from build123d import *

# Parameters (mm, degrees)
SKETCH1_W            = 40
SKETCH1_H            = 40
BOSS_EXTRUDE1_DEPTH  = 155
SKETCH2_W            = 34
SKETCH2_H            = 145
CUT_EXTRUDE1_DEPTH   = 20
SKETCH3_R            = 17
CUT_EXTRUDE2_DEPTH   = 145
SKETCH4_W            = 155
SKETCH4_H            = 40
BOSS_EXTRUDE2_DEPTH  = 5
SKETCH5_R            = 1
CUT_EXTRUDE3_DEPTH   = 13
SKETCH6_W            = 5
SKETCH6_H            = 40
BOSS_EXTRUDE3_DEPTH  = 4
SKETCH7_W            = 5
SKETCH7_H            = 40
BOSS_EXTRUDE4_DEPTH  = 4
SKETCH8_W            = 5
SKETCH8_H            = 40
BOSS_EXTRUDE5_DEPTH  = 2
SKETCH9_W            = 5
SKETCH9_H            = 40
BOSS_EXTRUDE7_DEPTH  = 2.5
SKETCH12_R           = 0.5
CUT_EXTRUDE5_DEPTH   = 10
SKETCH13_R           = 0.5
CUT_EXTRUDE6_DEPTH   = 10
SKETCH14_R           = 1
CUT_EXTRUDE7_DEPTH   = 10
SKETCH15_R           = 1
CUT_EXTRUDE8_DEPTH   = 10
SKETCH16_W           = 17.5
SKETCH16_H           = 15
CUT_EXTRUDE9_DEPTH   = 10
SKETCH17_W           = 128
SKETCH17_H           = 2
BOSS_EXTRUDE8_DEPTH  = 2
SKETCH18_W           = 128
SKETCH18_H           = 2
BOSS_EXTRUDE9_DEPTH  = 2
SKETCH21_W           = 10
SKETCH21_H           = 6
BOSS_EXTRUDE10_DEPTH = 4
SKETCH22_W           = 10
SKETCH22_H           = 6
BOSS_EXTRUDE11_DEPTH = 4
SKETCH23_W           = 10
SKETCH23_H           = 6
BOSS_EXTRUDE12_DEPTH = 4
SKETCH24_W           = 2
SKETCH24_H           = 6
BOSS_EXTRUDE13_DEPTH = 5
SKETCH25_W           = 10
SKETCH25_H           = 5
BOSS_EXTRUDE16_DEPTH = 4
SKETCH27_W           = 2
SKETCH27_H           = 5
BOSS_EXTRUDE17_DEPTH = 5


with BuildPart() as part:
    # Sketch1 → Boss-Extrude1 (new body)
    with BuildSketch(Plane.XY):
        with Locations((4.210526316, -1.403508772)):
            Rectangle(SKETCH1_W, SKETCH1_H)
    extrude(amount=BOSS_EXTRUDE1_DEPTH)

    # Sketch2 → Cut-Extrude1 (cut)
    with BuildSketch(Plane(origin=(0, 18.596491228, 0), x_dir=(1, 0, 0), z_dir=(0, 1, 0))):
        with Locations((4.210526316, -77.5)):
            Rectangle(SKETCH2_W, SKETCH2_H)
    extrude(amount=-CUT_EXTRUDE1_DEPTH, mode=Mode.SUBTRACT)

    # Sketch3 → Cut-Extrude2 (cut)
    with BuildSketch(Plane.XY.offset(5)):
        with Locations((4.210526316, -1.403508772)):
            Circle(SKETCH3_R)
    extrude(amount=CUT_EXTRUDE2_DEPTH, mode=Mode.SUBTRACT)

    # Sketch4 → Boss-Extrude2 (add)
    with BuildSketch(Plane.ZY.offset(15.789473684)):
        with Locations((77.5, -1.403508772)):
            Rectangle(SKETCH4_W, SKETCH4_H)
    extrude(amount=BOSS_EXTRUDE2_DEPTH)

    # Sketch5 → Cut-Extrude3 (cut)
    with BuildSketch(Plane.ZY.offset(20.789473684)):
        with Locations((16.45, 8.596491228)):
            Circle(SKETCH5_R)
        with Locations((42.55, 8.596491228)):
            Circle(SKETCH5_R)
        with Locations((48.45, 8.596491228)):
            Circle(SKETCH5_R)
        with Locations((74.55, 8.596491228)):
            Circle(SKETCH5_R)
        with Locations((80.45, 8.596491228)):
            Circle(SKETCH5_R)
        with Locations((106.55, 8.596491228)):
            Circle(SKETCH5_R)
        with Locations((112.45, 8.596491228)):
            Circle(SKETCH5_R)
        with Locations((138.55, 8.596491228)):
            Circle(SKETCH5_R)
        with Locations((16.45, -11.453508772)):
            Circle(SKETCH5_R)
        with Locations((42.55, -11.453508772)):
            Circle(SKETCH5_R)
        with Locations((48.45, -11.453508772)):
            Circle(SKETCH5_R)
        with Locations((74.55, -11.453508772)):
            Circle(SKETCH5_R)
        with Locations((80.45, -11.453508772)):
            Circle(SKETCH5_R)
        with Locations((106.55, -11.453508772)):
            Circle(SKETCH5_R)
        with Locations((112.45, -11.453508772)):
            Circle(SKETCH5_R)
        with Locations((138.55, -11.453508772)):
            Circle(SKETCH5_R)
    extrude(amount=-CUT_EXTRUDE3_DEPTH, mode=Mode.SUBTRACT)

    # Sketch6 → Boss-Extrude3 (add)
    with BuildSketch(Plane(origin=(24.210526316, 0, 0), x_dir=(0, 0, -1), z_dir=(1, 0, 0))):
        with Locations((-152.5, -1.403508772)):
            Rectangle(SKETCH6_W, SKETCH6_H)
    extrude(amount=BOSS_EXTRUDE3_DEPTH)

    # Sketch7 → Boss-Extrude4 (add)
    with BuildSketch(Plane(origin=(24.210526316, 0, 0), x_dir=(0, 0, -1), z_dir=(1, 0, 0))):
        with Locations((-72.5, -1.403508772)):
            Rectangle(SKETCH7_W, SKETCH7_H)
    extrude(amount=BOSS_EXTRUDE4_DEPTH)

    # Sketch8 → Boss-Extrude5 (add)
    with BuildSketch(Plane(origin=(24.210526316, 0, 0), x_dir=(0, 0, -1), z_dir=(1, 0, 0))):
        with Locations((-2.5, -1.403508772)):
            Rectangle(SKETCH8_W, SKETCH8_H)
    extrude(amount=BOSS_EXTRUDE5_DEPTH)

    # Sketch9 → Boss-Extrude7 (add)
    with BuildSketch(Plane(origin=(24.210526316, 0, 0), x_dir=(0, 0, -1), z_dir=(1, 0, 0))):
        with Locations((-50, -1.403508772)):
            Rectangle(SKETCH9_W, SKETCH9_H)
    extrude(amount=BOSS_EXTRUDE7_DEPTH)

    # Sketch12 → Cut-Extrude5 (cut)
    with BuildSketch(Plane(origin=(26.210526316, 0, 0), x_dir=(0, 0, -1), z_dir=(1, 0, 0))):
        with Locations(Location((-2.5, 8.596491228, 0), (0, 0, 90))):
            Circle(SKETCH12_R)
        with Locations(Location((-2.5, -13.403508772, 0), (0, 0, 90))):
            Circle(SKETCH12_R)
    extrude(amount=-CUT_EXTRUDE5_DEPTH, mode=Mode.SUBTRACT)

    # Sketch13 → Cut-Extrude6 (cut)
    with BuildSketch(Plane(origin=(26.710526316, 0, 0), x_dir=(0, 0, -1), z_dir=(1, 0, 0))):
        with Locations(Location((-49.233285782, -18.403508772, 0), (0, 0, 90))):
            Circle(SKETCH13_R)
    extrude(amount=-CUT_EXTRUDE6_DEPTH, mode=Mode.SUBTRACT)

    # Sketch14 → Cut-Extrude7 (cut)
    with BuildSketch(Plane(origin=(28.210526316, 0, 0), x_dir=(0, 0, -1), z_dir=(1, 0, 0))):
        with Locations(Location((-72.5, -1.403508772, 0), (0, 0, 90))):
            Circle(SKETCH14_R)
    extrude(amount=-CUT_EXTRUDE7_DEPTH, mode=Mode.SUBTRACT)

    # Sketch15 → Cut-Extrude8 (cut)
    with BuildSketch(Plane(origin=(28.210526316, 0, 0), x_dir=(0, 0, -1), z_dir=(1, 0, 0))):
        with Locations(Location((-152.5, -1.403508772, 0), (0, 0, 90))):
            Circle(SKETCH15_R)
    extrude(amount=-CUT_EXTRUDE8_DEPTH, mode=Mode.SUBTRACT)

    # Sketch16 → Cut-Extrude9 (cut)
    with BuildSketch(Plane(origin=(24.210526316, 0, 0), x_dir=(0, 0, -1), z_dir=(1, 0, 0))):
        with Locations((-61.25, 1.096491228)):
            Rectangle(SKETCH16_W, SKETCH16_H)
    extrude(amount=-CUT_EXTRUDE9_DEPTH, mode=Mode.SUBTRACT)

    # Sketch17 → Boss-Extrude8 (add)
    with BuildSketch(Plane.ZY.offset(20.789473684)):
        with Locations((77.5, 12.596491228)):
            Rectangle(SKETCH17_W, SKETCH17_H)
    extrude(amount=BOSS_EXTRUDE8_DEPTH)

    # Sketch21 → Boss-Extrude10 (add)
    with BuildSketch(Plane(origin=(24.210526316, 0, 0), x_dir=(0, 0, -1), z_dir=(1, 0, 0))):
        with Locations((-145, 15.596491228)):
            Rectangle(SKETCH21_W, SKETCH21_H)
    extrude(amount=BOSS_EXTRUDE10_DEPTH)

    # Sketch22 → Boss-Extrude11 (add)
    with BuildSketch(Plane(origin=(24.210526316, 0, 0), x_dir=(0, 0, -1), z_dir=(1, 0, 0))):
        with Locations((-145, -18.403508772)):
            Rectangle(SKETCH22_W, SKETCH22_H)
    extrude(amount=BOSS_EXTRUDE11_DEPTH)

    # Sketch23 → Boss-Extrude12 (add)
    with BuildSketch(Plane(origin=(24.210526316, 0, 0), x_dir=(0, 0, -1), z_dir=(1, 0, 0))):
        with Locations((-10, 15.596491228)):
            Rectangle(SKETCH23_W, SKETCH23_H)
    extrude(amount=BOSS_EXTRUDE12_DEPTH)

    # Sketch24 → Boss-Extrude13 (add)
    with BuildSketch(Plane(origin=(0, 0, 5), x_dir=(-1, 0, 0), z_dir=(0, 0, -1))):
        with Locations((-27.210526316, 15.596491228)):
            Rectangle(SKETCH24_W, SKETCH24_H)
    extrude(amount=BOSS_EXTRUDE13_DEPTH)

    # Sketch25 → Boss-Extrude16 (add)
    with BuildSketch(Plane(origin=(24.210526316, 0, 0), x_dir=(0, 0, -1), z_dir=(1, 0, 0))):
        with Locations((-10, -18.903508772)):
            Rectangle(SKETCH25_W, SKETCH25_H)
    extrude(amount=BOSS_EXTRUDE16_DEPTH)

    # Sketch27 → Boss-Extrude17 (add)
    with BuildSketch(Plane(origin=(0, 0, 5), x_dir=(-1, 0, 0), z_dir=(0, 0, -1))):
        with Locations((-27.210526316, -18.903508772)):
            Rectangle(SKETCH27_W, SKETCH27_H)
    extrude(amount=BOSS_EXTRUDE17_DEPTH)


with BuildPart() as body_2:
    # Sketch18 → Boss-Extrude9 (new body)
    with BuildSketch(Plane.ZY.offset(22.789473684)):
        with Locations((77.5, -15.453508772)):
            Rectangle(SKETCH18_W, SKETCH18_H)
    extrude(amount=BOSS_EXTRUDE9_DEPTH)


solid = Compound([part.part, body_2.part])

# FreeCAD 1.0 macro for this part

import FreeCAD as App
import Part
import Sketcher

V = App.Vector

doc = App.newDocument("Part")
body = doc.addObject("PartDesign::Body", "Body")

sketch1 = body.newObject("Sketcher::SketchObject", "Sketch")
sketch1.AttachmentSupport = (doc.getObject("XY_Plane"), [""])
sketch1.MapMode = "FlatFace"
sketch1.addGeometry(Part.LineSegment(V(-16, 19, 0), V(-16, -21, 0)), False)
sketch1.addGeometry(Part.LineSegment(V(-16, -21, 0), V(24, -21, 0)), False)
sketch1.addGeometry(Part.LineSegment(V(24, -21, 0), V(24, 19, 0)), False)
sketch1.addGeometry(Part.LineSegment(V(24, 19, 0), V(-16, 19, 0)), False)
sketch1.addConstraint(Sketcher.Constraint("Coincident", 0, 2, 1, 1))
sketch1.addConstraint(Sketcher.Constraint("Coincident", 1, 2, 2, 1))
sketch1.addConstraint(Sketcher.Constraint("Coincident", 2, 2, 3, 1))
sketch1.addConstraint(Sketcher.Constraint("Coincident", 3, 2, 0, 1))
sketch1.addConstraint(Sketcher.Constraint("Vertical", 0))
sketch1.addConstraint(Sketcher.Constraint("Horizontal", 1))
sketch1.addConstraint(Sketcher.Constraint("Vertical", 2))
sketch1.addConstraint(Sketcher.Constraint("Horizontal", 3))
sketch1.addConstraint(Sketcher.Constraint("Equal", 3, 0))
sketch1.addConstraint(Sketcher.Constraint("DistanceX", 1, 1, 1, 2, 40.0))
sketch1.addConstraint(Sketcher.Constraint("DistanceY", 0, 2, -1, 1, 21.403509))
sketch1.addConstraint(Sketcher.Constraint("DistanceX", 0, 2, -1, 1, 15.789474))
pad1 = body.newObject("PartDesign::Pad", "Pad")
pad1.Profile = sketch1
pad1.Length = 155

sketch2 = body.newObject("Sketcher::SketchObject", "Sketch001")
sketch2.AttachmentSupport = (doc.getObject("XZ_Plane"), [""])
sketch2.MapMode = "FlatFace"
sketch2.AttachmentOffset = App.Placement(V(0, 0, -18.596491), App.Rotation())
sketch2.addGeometry(Part.LineSegment(V(-13, 5, 0), V(-13, 150, 0)), False)
sketch2.addGeometry(Part.LineSegment(V(-13, 150, 0), V(21, 150, 0)), False)
sketch2.addGeometry(Part.LineSegment(V(21, 150, 0), V(21, 5, 0)), False)
sketch2.addGeometry(Part.LineSegment(V(21, 5, 0), V(-13, 5, 0)), False)
sketch2.addConstraint(Sketcher.Constraint("Coincident", 0, 2, 1, 1))
sketch2.addConstraint(Sketcher.Constraint("Coincident", 1, 2, 2, 1))
sketch2.addConstraint(Sketcher.Constraint("Coincident", 2, 2, 3, 1))
sketch2.addConstraint(Sketcher.Constraint("Coincident", 3, 2, 0, 1))
sketch2.addConstraint(Sketcher.Constraint("Vertical", 0))
sketch2.addConstraint(Sketcher.Constraint("Horizontal", 1))
sketch2.addConstraint(Sketcher.Constraint("Vertical", 2))
sketch2.addConstraint(Sketcher.Constraint("Horizontal", 3))
sketch2.addConstraint(Sketcher.Constraint("DistanceX", 1, 1, 1, 2, 34.0))
sketch2.addConstraint(Sketcher.Constraint("DistanceY", 0, 1, 0, 2, 145.0))
sketch2.addConstraint(Sketcher.Constraint("DistanceY", -1, 1, 0, 2, 150.0))
sketch2.addConstraint(Sketcher.Constraint("DistanceX", 0, 2, -1, 1, 12.789474))
pocket1 = body.newObject("PartDesign::Pocket", "Pocket")
pocket1.Profile = sketch2
pocket1.Length = 20
pocket1.Reversed = True

sketch3 = body.newObject("Sketcher::SketchObject", "Sketch002")
sketch3.AttachmentSupport = (doc.getObject("XY_Plane"), [""])
sketch3.MapMode = "FlatFace"
sketch3.AttachmentOffset = App.Placement(V(0, 0, 5), App.Rotation())
sketch3.addGeometry(Part.Circle(V(4, -1, 0), V(0, 0, 1), 17), False)
sketch3.addConstraint(Sketcher.Constraint("Diameter", 0, 34.0))
sketch3.addConstraint(Sketcher.Constraint("DistanceY", 0, 3, -1, 1, 1.403509))
sketch3.addConstraint(Sketcher.Constraint("DistanceX", -1, 1, 0, 3, 4.210526))
pocket2 = body.newObject("PartDesign::Pocket", "Pocket001")
pocket2.Profile = sketch3
pocket2.Length = 145
pocket2.Reversed = True

sketch4 = body.newObject("Sketcher::SketchObject", "Sketch003")
sketch4.AttachmentSupport = (doc.getObject("YZ_Plane"), [""])
sketch4.MapMode = "FlatFace"
sketch4.AttachmentOffset = App.Placement(V(0, 0, -15.789474), App.Rotation())
sketch4.addGeometry(Part.LineSegment(V(19, 0, 0), V(-21, 0, 0)), False)
sketch4.addGeometry(Part.LineSegment(V(-21, 0, 0), V(-21, 155, 0)), False)
sketch4.addGeometry(Part.LineSegment(V(-21, 155, 0), V(19, 155, 0)), False)
sketch4.addGeometry(Part.LineSegment(V(19, 155, 0), V(19, 0, 0)), False)
sketch4.addConstraint(Sketcher.Constraint("Coincident", 0, 2, 1, 1))
sketch4.addConstraint(Sketcher.Constraint("Coincident", 1, 2, 2, 1))
sketch4.addConstraint(Sketcher.Constraint("Coincident", 2, 2, 3, 1))
sketch4.addConstraint(Sketcher.Constraint("Coincident", 3, 2, 0, 1))
sketch4.addConstraint(Sketcher.Constraint("Horizontal", 0))
sketch4.addConstraint(Sketcher.Constraint("Vertical", 1))
sketch4.addConstraint(Sketcher.Constraint("Horizontal", 2))
sketch4.addConstraint(Sketcher.Constraint("Vertical", 3))
sketch4.addConstraint(Sketcher.Constraint("PointOnObject", 0, 2, -1))
sketch4.addConstraint(Sketcher.Constraint("DistanceX", 0, 2, 0, 1, 40.0))
sketch4.addConstraint(Sketcher.Constraint("DistanceY", 1, 1, 1, 2, 155.0))
sketch4.addConstraint(Sketcher.Constraint("DistanceX", 0, 2, -1, 1, 21.403509))
pad2 = body.newObject("PartDesign::Pad", "Pad001")
pad2.Profile = sketch4
pad2.Length = 5
pad2.Reversed = True

sketch5 = body.newObject("Sketcher::SketchObject", "Sketch004")
sketch5.AttachmentSupport = (doc.getObject("YZ_Plane"), [""])
sketch5.MapMode = "FlatFace"
sketch5.AttachmentOffset = App.Placement(V(0, 0, -20.789474), App.Rotation())
sketch5.addGeometry(Part.Circle(V(8.6, 16.4, 0), V(0, 0, 1), 1), False)
sketch5.addGeometry(Part.Circle(V(8.6, 42.5, 0), V(0, 0, 1), 1), False)
sketch5.addGeometry(Part.Circle(V(8.6, 48.5, 0), V(0, 0, 1), 1), False)
sketch5.addGeometry(Part.Circle(V(8.6, 74.5, 0), V(0, 0, 1), 1), False)
sketch5.addGeometry(Part.Circle(V(8.6, 80.5, 0), V(0, 0, 1), 1), False)
sketch5.addGeometry(Part.Circle(V(8.6, 106.5, 0), V(0, 0, 1), 1), False)
sketch5.addGeometry(Part.Circle(V(8.6, 112.5, 0), V(0, 0, 1), 1), False)
sketch5.addGeometry(Part.Circle(V(8.6, 138.6, 0), V(0, 0, 1), 1), False)
sketch5.addGeometry(Part.Circle(V(-11.5, 16.4, 0), V(0, 0, 1), 1), False)
sketch5.addGeometry(Part.Circle(V(-11.5, 42.5, 0), V(0, 0, 1), 1), False)
sketch5.addGeometry(Part.Circle(V(-11.5, 48.5, 0), V(0, 0, 1), 1), False)
sketch5.addGeometry(Part.Circle(V(-11.5, 74.5, 0), V(0, 0, 1), 1), False)
sketch5.addGeometry(Part.Circle(V(-11.5, 80.5, 0), V(0, 0, 1), 1), False)
sketch5.addGeometry(Part.Circle(V(-11.5, 106.5, 0), V(0, 0, 1), 1), False)
sketch5.addGeometry(Part.Circle(V(-11.5, 112.5, 0), V(0, 0, 1), 1), False)
sketch5.addGeometry(Part.Circle(V(-11.5, 138.6, 0), V(0, 0, 1), 1), False)
sketch5.addConstraint(Sketcher.Constraint("Equal", 0, 1))
sketch5.addConstraint(Sketcher.Constraint("Equal", 1, 2))
sketch5.addConstraint(Sketcher.Constraint("Equal", 2, 3))
sketch5.addConstraint(Sketcher.Constraint("Equal", 3, 4))
sketch5.addConstraint(Sketcher.Constraint("Equal", 4, 5))
sketch5.addConstraint(Sketcher.Constraint("Equal", 5, 6))
sketch5.addConstraint(Sketcher.Constraint("Equal", 6, 7))
sketch5.addConstraint(Sketcher.Constraint("Equal", 7, 8))
sketch5.addConstraint(Sketcher.Constraint("Equal", 8, 9))
sketch5.addConstraint(Sketcher.Constraint("Equal", 9, 10))
sketch5.addConstraint(Sketcher.Constraint("Equal", 10, 11))
sketch5.addConstraint(Sketcher.Constraint("Equal", 11, 12))
sketch5.addConstraint(Sketcher.Constraint("Equal", 12, 13))
sketch5.addConstraint(Sketcher.Constraint("Equal", 13, 14))
sketch5.addConstraint(Sketcher.Constraint("Equal", 14, 15))
sketch5.addConstraint(Sketcher.Constraint("Horizontal", 0, 3, 8, 3))
sketch5.addConstraint(Sketcher.Constraint("Horizontal", 1, 3, 9, 3))
sketch5.addConstraint(Sketcher.Constraint("Horizontal", 2, 3, 10, 3))
sketch5.addConstraint(Sketcher.Constraint("Horizontal", 3, 3, 11, 3))
sketch5.addConstraint(Sketcher.Constraint("Horizontal", 4, 3, 12, 3))
sketch5.addConstraint(Sketcher.Constraint("Horizontal", 5, 3, 13, 3))
sketch5.addConstraint(Sketcher.Constraint("Horizontal", 6, 3, 14, 3))
sketch5.addConstraint(Sketcher.Constraint("Horizontal", 7, 3, 15, 3))
sketch5.addConstraint(Sketcher.Constraint("Vertical", 0, 3, 1, 3))
sketch5.addConstraint(Sketcher.Constraint("Vertical", 1, 3, 2, 3))
sketch5.addConstraint(Sketcher.Constraint("Vertical", 2, 3, 3, 3))
sketch5.addConstraint(Sketcher.Constraint("Vertical", 3, 3, 4, 3))
sketch5.addConstraint(Sketcher.Constraint("Vertical", 4, 3, 5, 3))
sketch5.addConstraint(Sketcher.Constraint("Vertical", 5, 3, 6, 3))
sketch5.addConstraint(Sketcher.Constraint("Vertical", 6, 3, 7, 3))
sketch5.addConstraint(Sketcher.Constraint("Vertical", 8, 3, 9, 3))
sketch5.addConstraint(Sketcher.Constraint("Vertical", 9, 3, 10, 3))
sketch5.addConstraint(Sketcher.Constraint("Vertical", 10, 3, 11, 3))
sketch5.addConstraint(Sketcher.Constraint("Vertical", 11, 3, 12, 3))
sketch5.addConstraint(Sketcher.Constraint("Vertical", 12, 3, 13, 3))
sketch5.addConstraint(Sketcher.Constraint("Vertical", 13, 3, 14, 3))
sketch5.addConstraint(Sketcher.Constraint("Vertical", 14, 3, 15, 3))
sketch5.addConstraint(Sketcher.Constraint("Diameter", 0, 2.0))
sketch5.addConstraint(Sketcher.Constraint("DistanceY", 0, 3, 2, 3, 32.0))
sketch5.addConstraint(Sketcher.Constraint("DistanceY", 1, 3, 3, 3, 32.0))
sketch5.addConstraint(Sketcher.Constraint("DistanceY", 2, 3, 4, 3, 32.0))
sketch5.addConstraint(Sketcher.Constraint("DistanceY", 3, 3, 5, 3, 32.0))
sketch5.addConstraint(Sketcher.Constraint("DistanceY", 4, 3, 6, 3, 32.0))
sketch5.addConstraint(Sketcher.Constraint("DistanceY", 5, 3, 7, 3, 32.0))
sketch5.addConstraint(Sketcher.Constraint("DistanceY", 0, 3, 1, 3, 26.1))
sketch5.addConstraint(Sketcher.Constraint("DistanceY", -1, 1, 0, 3, 16.45))
sketch5.addConstraint(Sketcher.Constraint("DistanceX", 8, 3, 0, 3, 20.05))
sketch5.addConstraint(Sketcher.Constraint("DistanceX", -1, 1, 0, 3, 8.596491))
pocket3 = body.newObject("PartDesign::Pocket", "Pocket002")
pocket3.Profile = sketch5
pocket3.Length = 13
pocket3.Reversed = True

sketch6 = body.newObject("Sketcher::SketchObject", "Sketch005")
sketch6.AttachmentSupport = (doc.getObject("YZ_Plane"), [""])
sketch6.MapMode = "FlatFace"
sketch6.AttachmentOffset = App.Placement(V(0, 0, 24.210526), App.Rotation())
sketch6.addGeometry(Part.LineSegment(V(19, 155, 0), V(-21, 155, 0)), False)
sketch6.addGeometry(Part.LineSegment(V(-21, 155, 0), V(-21, 150, 0)), False)
sketch6.addGeometry(Part.LineSegment(V(-21, 150, 0), V(19, 150, 0)), False)
sketch6.addGeometry(Part.LineSegment(V(19, 150, 0), V(19, 155, 0)), False)
sketch6.addConstraint(Sketcher.Constraint("Coincident", 0, 2, 1, 1))
sketch6.addConstraint(Sketcher.Constraint("Coincident", 1, 2, 2, 1))
sketch6.addConstraint(Sketcher.Constraint("Coincident", 2, 2, 3, 1))
sketch6.addConstraint(Sketcher.Constraint("Coincident", 3, 2, 0, 1))
sketch6.addConstraint(Sketcher.Constraint("Horizontal", 0))
sketch6.addConstraint(Sketcher.Constraint("Vertical", 1))
sketch6.addConstraint(Sketcher.Constraint("Horizontal", 2))
sketch6.addConstraint(Sketcher.Constraint("Vertical", 3))
sketch6.addConstraint(Sketcher.Constraint("DistanceX", 0, 2, 0, 1, 40.0))
sketch6.addConstraint(Sketcher.Constraint("DistanceY", 1, 2, 1, 1, 5.0))
sketch6.addConstraint(Sketcher.Constraint("DistanceY", -1, 1, 0, 2, 155.0))
sketch6.addConstraint(Sketcher.Constraint("DistanceX", 0, 2, -1, 1, 21.403509))
pad3 = body.newObject("PartDesign::Pad", "Pad002")
pad3.Profile = sketch6
pad3.Length = 4

sketch7 = body.newObject("Sketcher::SketchObject", "Sketch006")
sketch7.AttachmentSupport = (doc.getObject("YZ_Plane"), [""])
sketch7.MapMode = "FlatFace"
sketch7.AttachmentOffset = App.Placement(V(0, 0, 24.210526), App.Rotation())
sketch7.addGeometry(Part.LineSegment(V(19, 75, 0), V(-21, 75, 0)), False)
sketch7.addGeometry(Part.LineSegment(V(-21, 75, 0), V(-21, 70, 0)), False)
sketch7.addGeometry(Part.LineSegment(V(-21, 70, 0), V(19, 70, 0)), False)
sketch7.addGeometry(Part.LineSegment(V(19, 70, 0), V(19, 75, 0)), False)
sketch7.addConstraint(Sketcher.Constraint("Coincident", 0, 2, 1, 1))
sketch7.addConstraint(Sketcher.Constraint("Coincident", 1, 2, 2, 1))
sketch7.addConstraint(Sketcher.Constraint("Coincident", 2, 2, 3, 1))
sketch7.addConstraint(Sketcher.Constraint("Coincident", 3, 2, 0, 1))
sketch7.addConstraint(Sketcher.Constraint("Horizontal", 0))
sketch7.addConstraint(Sketcher.Constraint("Vertical", 1))
sketch7.addConstraint(Sketcher.Constraint("Horizontal", 2))
sketch7.addConstraint(Sketcher.Constraint("Vertical", 3))
sketch7.addConstraint(Sketcher.Constraint("DistanceX", 0, 2, 0, 1, 40.0))
sketch7.addConstraint(Sketcher.Constraint("DistanceY", 1, 2, 1, 1, 5.0))
sketch7.addConstraint(Sketcher.Constraint("DistanceY", -1, 1, 0, 2, 75.0))
sketch7.addConstraint(Sketcher.Constraint("DistanceX", 0, 2, -1, 1, 21.403509))
pad4 = body.newObject("PartDesign::Pad", "Pad003")
pad4.Profile = sketch7
pad4.Length = 4

sketch8 = body.newObject("Sketcher::SketchObject", "Sketch007")
sketch8.AttachmentSupport = (doc.getObject("YZ_Plane"), [""])
sketch8.MapMode = "FlatFace"
sketch8.AttachmentOffset = App.Placement(V(0, 0, 24.210526), App.Rotation())
sketch8.addGeometry(Part.LineSegment(V(19, 5, 0), V(-21, 5, 0)), False)
sketch8.addGeometry(Part.LineSegment(V(-21, 5, 0), V(-21, 0, 0)), False)
sketch8.addGeometry(Part.LineSegment(V(-21, 0, 0), V(19, 0, 0)), False)
sketch8.addGeometry(Part.LineSegment(V(19, 0, 0), V(19, 5, 0)), False)
sketch8.addConstraint(Sketcher.Constraint("Coincident", 0, 2, 1, 1))
sketch8.addConstraint(Sketcher.Constraint("Coincident", 1, 2, 2, 1))
sketch8.addConstraint(Sketcher.Constraint("Coincident", 2, 2, 3, 1))
sketch8.addConstraint(Sketcher.Constraint("Coincident", 3, 2, 0, 1))
sketch8.addConstraint(Sketcher.Constraint("Horizontal", 0))
sketch8.addConstraint(Sketcher.Constraint("Vertical", 1))
sketch8.addConstraint(Sketcher.Constraint("Horizontal", 2))
sketch8.addConstraint(Sketcher.Constraint("Vertical", 3))
sketch8.addConstraint(Sketcher.Constraint("PointOnObject", 1, 2, -1))
sketch8.addConstraint(Sketcher.Constraint("DistanceX", 0, 2, 0, 1, 40.0))
sketch8.addConstraint(Sketcher.Constraint("DistanceY", 1, 2, 1, 1, 5.0))
sketch8.addConstraint(Sketcher.Constraint("DistanceX", 0, 2, -1, 1, 21.403509))
pad5 = body.newObject("PartDesign::Pad", "Pad004")
pad5.Profile = sketch8
pad5.Length = 2

sketch9 = body.newObject("Sketcher::SketchObject", "Sketch008")
sketch9.AttachmentSupport = (doc.getObject("YZ_Plane"), [""])
sketch9.MapMode = "FlatFace"
sketch9.AttachmentOffset = App.Placement(V(0, 0, 24.210526), App.Rotation())
sketch9.addGeometry(Part.LineSegment(V(19, 52, 0), V(-21, 52, 0)), False)
sketch9.addGeometry(Part.LineSegment(V(-21, 52, 0), V(-21, 48, 0)), False)
sketch9.addGeometry(Part.LineSegment(V(-21, 48, 0), V(19, 48, 0)), False)
sketch9.addGeometry(Part.LineSegment(V(19, 48, 0), V(19, 52, 0)), False)
sketch9.addConstraint(Sketcher.Constraint("Coincident", 0, 2, 1, 1))
sketch9.addConstraint(Sketcher.Constraint("Coincident", 1, 2, 2, 1))
sketch9.addConstraint(Sketcher.Constraint("Coincident", 2, 2, 3, 1))
sketch9.addConstraint(Sketcher.Constraint("Coincident", 3, 2, 0, 1))
sketch9.addConstraint(Sketcher.Constraint("Horizontal", 0))
sketch9.addConstraint(Sketcher.Constraint("Vertical", 1))
sketch9.addConstraint(Sketcher.Constraint("Horizontal", 2))
sketch9.addConstraint(Sketcher.Constraint("Vertical", 3))
sketch9.addConstraint(Sketcher.Constraint("DistanceX", 0, 2, 0, 1, 40.0))
sketch9.addConstraint(Sketcher.Constraint("DistanceY", 1, 2, 1, 1, 5.0))
sketch9.addConstraint(Sketcher.Constraint("DistanceY", -1, 1, 0, 2, 52.5))
sketch9.addConstraint(Sketcher.Constraint("DistanceX", 0, 2, -1, 1, 21.403509))
pad6 = body.newObject("PartDesign::Pad", "Pad005")
pad6.Profile = sketch9
pad6.Length = 2.5

sketch10 = body.newObject("Sketcher::SketchObject", "Sketch009")
sketch10.AttachmentSupport = (doc.getObject("YZ_Plane"), [""])
sketch10.MapMode = "FlatFace"
sketch10.AttachmentOffset = App.Placement(V(0, 0, 26.210526), App.Rotation())
sketch10.addGeometry(Part.Circle(V(8.6, 2.5, 0), V(0, 0, 1), 0.5), False)
sketch10.addGeometry(Part.Circle(V(-13.4, 2.5, 0), V(0, 0, 1), 0.5), False)
sketch10.addConstraint(Sketcher.Constraint("Equal", 0, 1))
sketch10.addConstraint(Sketcher.Constraint("Horizontal", 0, 3, 1, 3))
sketch10.addConstraint(Sketcher.Constraint("Diameter", 0, 1.0))
sketch10.addConstraint(Sketcher.Constraint("DistanceX", 1, 3, 0, 3, 22.0))
sketch10.addConstraint(Sketcher.Constraint("DistanceY", -1, 1, 0, 3, 2.5))
sketch10.addConstraint(Sketcher.Constraint("DistanceX", -1, 1, 0, 3, 8.596491))
pocket4 = body.newObject("PartDesign::Pocket", "Pocket003")
pocket4.Profile = sketch10
pocket4.Length = 10

sketch11 = body.newObject("Sketcher::SketchObject", "Sketch010")
sketch11.AttachmentSupport = (doc.getObject("YZ_Plane"), [""])
sketch11.MapMode = "FlatFace"
sketch11.AttachmentOffset = App.Placement(V(0, 0, 26.710526), App.Rotation())
sketch11.addGeometry(Part.Circle(V(-18.4, 49.2, 0), V(0, 0, 1), 0.5), False)
sketch11.addConstraint(Sketcher.Constraint("Diameter", 0, 1.0))
sketch11.addConstraint(Sketcher.Constraint("DistanceX", 0, 3, -1, 1, 18.403509))
sketch11.addConstraint(Sketcher.Constraint("DistanceY", -1, 1, 0, 3, 49.233286))
pocket5 = body.newObject("PartDesign::Pocket", "Pocket004")
pocket5.Profile = sketch11
pocket5.Length = 10

sketch12 = body.newObject("Sketcher::SketchObject", "Sketch011")
sketch12.AttachmentSupport = (doc.getObject("YZ_Plane"), [""])
sketch12.MapMode = "FlatFace"
sketch12.AttachmentOffset = App.Placement(V(0, 0, 28.210526), App.Rotation())
sketch12.addGeometry(Part.Circle(V(-1.4, 72.5, 0), V(0, 0, 1), 1), False)
sketch12.addConstraint(Sketcher.Constraint("Diameter", 0, 2.0))
sketch12.addConstraint(Sketcher.Constraint("DistanceY", -1, 1, 0, 3, 72.5))
sketch12.addConstraint(Sketcher.Constraint("DistanceX", 0, 3, -1, 1, 1.403509))
pocket6 = body.newObject("PartDesign::Pocket", "Pocket005")
pocket6.Profile = sketch12
pocket6.Length = 10

sketch13 = body.newObject("Sketcher::SketchObject", "Sketch012")
sketch13.AttachmentSupport = (doc.getObject("YZ_Plane"), [""])
sketch13.MapMode = "FlatFace"
sketch13.AttachmentOffset = App.Placement(V(0, 0, 28.210526), App.Rotation())
sketch13.addGeometry(Part.Circle(V(-1.4, 152.5, 0), V(0, 0, 1), 1), False)
sketch13.addConstraint(Sketcher.Constraint("Diameter", 0, 2.0))
sketch13.addConstraint(Sketcher.Constraint("DistanceY", -1, 1, 0, 3, 152.5))
sketch13.addConstraint(Sketcher.Constraint("DistanceX", 0, 3, -1, 1, 1.403509))
pocket7 = body.newObject("PartDesign::Pocket", "Pocket006")
pocket7.Profile = sketch13
pocket7.Length = 10

sketch14 = body.newObject("Sketcher::SketchObject", "Sketch013")
sketch14.AttachmentSupport = (doc.getObject("YZ_Plane"), [""])
sketch14.MapMode = "FlatFace"
sketch14.AttachmentOffset = App.Placement(V(0, 0, 24.210526), App.Rotation())
sketch14.addGeometry(Part.LineSegment(V(9, 70, 0), V(-6, 70, 0)), False)
sketch14.addGeometry(Part.LineSegment(V(-6, 70, 0), V(-6, 52, 0)), False)
sketch14.addGeometry(Part.LineSegment(V(-6, 52, 0), V(9, 52, 0)), False)
sketch14.addGeometry(Part.LineSegment(V(9, 52, 0), V(9, 70, 0)), False)
sketch14.addConstraint(Sketcher.Constraint("Coincident", 0, 2, 1, 1))
sketch14.addConstraint(Sketcher.Constraint("Coincident", 1, 2, 2, 1))
sketch14.addConstraint(Sketcher.Constraint("Coincident", 2, 2, 3, 1))
sketch14.addConstraint(Sketcher.Constraint("Coincident", 3, 2, 0, 1))
sketch14.addConstraint(Sketcher.Constraint("Horizontal", 0))
sketch14.addConstraint(Sketcher.Constraint("Vertical", 1))
sketch14.addConstraint(Sketcher.Constraint("Horizontal", 2))
sketch14.addConstraint(Sketcher.Constraint("Vertical", 3))
sketch14.addConstraint(Sketcher.Constraint("DistanceX", 0, 2, 0, 1, 15.0))
sketch14.addConstraint(Sketcher.Constraint("DistanceY", 1, 2, 1, 1, 17.5))
sketch14.addConstraint(Sketcher.Constraint("DistanceY", -1, 1, 0, 2, 70.0))
sketch14.addConstraint(Sketcher.Constraint("DistanceX", 0, 2, -1, 1, 6.403509))
pocket8 = body.newObject("PartDesign::Pocket", "Pocket007")
pocket8.Profile = sketch14
pocket8.Length = 10

sketch15 = body.newObject("Sketcher::SketchObject", "Sketch014")
sketch15.AttachmentSupport = (doc.getObject("YZ_Plane"), [""])
sketch15.MapMode = "FlatFace"
sketch15.AttachmentOffset = App.Placement(V(0, 0, -20.789474), App.Rotation())
sketch15.addGeometry(Part.LineSegment(V(13.6, 13.5, 0), V(11.6, 13.5, 0)), False)
sketch15.addGeometry(Part.LineSegment(V(11.6, 13.5, 0), V(11.6, 141.5, 0)), False)
sketch15.addGeometry(Part.LineSegment(V(11.6, 141.5, 0), V(13.6, 141.5, 0)), False)
sketch15.addGeometry(Part.LineSegment(V(13.6, 141.5, 0), V(13.6, 13.5, 0)), False)
sketch15.addConstraint(Sketcher.Constraint("Coincident", 0, 2, 1, 1))
sketch15.addConstraint(Sketcher.Constraint("Coincident", 1, 2, 2, 1))
sketch15.addConstraint(Sketcher.Constraint("Coincident", 2, 2, 3, 1))
sketch15.addConstraint(Sketcher.Constraint("Coincident", 3, 2, 0, 1))
sketch15.addConstraint(Sketcher.Constraint("Horizontal", 0))
sketch15.addConstraint(Sketcher.Constraint("Vertical", 1))
sketch15.addConstraint(Sketcher.Constraint("Horizontal", 2))
sketch15.addConstraint(Sketcher.Constraint("Vertical", 3))
sketch15.addConstraint(Sketcher.Constraint("DistanceX", 0, 2, 0, 1, 2.0))
sketch15.addConstraint(Sketcher.Constraint("DistanceY", 1, 1, 1, 2, 128.0))
sketch15.addConstraint(Sketcher.Constraint("DistanceY", -1, 1, 0, 2, 13.5))
sketch15.addConstraint(Sketcher.Constraint("DistanceX", -1, 1, 0, 2, 11.596491))
pad7 = body.newObject("PartDesign::Pad", "Pad006")
pad7.Profile = sketch15
pad7.Length = 2
pad7.Reversed = True

sketch16 = body.newObject("Sketcher::SketchObject", "Sketch015")
sketch16.AttachmentSupport = (doc.getObject("YZ_Plane"), [""])
sketch16.MapMode = "FlatFace"
sketch16.AttachmentOffset = App.Placement(V(0, 0, 24.210526), App.Rotation())
sketch16.addGeometry(Part.LineSegment(V(19, 150, 0), V(13, 150, 0)), False)
sketch16.addGeometry(Part.LineSegment(V(13, 150, 0), V(13, 140, 0)), False)
sketch16.addGeometry(Part.LineSegment(V(13, 140, 0), V(19, 140, 0)), False)
sketch16.addGeometry(Part.LineSegment(V(19, 140, 0), V(19, 150, 0)), False)
sketch16.addConstraint(Sketcher.Constraint("Coincident", 0, 2, 1, 1))
sketch16.addConstraint(Sketcher.Constraint("Coincident", 1, 2, 2, 1))
sketch16.addConstraint(Sketcher.Constraint("Coincident", 2, 2, 3, 1))
sketch16.addConstraint(Sketcher.Constraint("Coincident", 3, 2, 0, 1))
sketch16.addConstraint(Sketcher.Constraint("Horizontal", 0))
sketch16.addConstraint(Sketcher.Constraint("Vertical", 1))
sketch16.addConstraint(Sketcher.Constraint("Horizontal", 2))
sketch16.addConstraint(Sketcher.Constraint("Vertical", 3))
sketch16.addConstraint(Sketcher.Constraint("DistanceX", 0, 2, 0, 1, 6.0))
sketch16.addConstraint(Sketcher.Constraint("DistanceY", 1, 2, 1, 1, 10.0))
sketch16.addConstraint(Sketcher.Constraint("DistanceY", -1, 1, 0, 2, 150.0))
sketch16.addConstraint(Sketcher.Constraint("DistanceX", -1, 1, 0, 2, 12.596491))
pad8 = body.newObject("PartDesign::Pad", "Pad007")
pad8.Profile = sketch16
pad8.Length = 4

sketch17 = body.newObject("Sketcher::SketchObject", "Sketch016")
sketch17.AttachmentSupport = (doc.getObject("YZ_Plane"), [""])
sketch17.MapMode = "FlatFace"
sketch17.AttachmentOffset = App.Placement(V(0, 0, 24.210526), App.Rotation())
sketch17.addGeometry(Part.LineSegment(V(-15, 150, 0), V(-21, 150, 0)), False)
sketch17.addGeometry(Part.LineSegment(V(-21, 150, 0), V(-21, 140, 0)), False)
sketch17.addGeometry(Part.LineSegment(V(-21, 140, 0), V(-15, 140, 0)), False)
sketch17.addGeometry(Part.LineSegment(V(-15, 140, 0), V(-15, 150, 0)), False)
sketch17.addConstraint(Sketcher.Constraint("Coincident", 0, 2, 1, 1))
sketch17.addConstraint(Sketcher.Constraint("Coincident", 1, 2, 2, 1))
sketch17.addConstraint(Sketcher.Constraint("Coincident", 2, 2, 3, 1))
sketch17.addConstraint(Sketcher.Constraint("Coincident", 3, 2, 0, 1))
sketch17.addConstraint(Sketcher.Constraint("Horizontal", 0))
sketch17.addConstraint(Sketcher.Constraint("Vertical", 1))
sketch17.addConstraint(Sketcher.Constraint("Horizontal", 2))
sketch17.addConstraint(Sketcher.Constraint("Vertical", 3))
sketch17.addConstraint(Sketcher.Constraint("DistanceX", 0, 2, 0, 1, 6.0))
sketch17.addConstraint(Sketcher.Constraint("DistanceY", 1, 2, 1, 1, 10.0))
sketch17.addConstraint(Sketcher.Constraint("DistanceY", -1, 1, 0, 2, 150.0))
sketch17.addConstraint(Sketcher.Constraint("DistanceX", 0, 2, -1, 1, 21.403509))
pad9 = body.newObject("PartDesign::Pad", "Pad008")
pad9.Profile = sketch17
pad9.Length = 4

sketch18 = body.newObject("Sketcher::SketchObject", "Sketch017")
sketch18.AttachmentSupport = (doc.getObject("YZ_Plane"), [""])
sketch18.MapMode = "FlatFace"
sketch18.AttachmentOffset = App.Placement(V(0, 0, 24.210526), App.Rotation())
sketch18.addGeometry(Part.LineSegment(V(19, 15, 0), V(13, 15, 0)), False)
sketch18.addGeometry(Part.LineSegment(V(13, 15, 0), V(13, 5, 0)), False)
sketch18.addGeometry(Part.LineSegment(V(13, 5, 0), V(19, 5, 0)), False)
sketch18.addGeometry(Part.LineSegment(V(19, 5, 0), V(19, 15, 0)), False)
sketch18.addConstraint(Sketcher.Constraint("Coincident", 0, 2, 1, 1))
sketch18.addConstraint(Sketcher.Constraint("Coincident", 1, 2, 2, 1))
sketch18.addConstraint(Sketcher.Constraint("Coincident", 2, 2, 3, 1))
sketch18.addConstraint(Sketcher.Constraint("Coincident", 3, 2, 0, 1))
sketch18.addConstraint(Sketcher.Constraint("Horizontal", 0))
sketch18.addConstraint(Sketcher.Constraint("Vertical", 1))
sketch18.addConstraint(Sketcher.Constraint("Horizontal", 2))
sketch18.addConstraint(Sketcher.Constraint("Vertical", 3))
sketch18.addConstraint(Sketcher.Constraint("DistanceX", 0, 2, 0, 1, 6.0))
sketch18.addConstraint(Sketcher.Constraint("DistanceY", 1, 2, 1, 1, 10.0))
sketch18.addConstraint(Sketcher.Constraint("DistanceY", -1, 1, 0, 2, 15.0))
sketch18.addConstraint(Sketcher.Constraint("DistanceX", -1, 1, 0, 2, 12.596491))
pad10 = body.newObject("PartDesign::Pad", "Pad009")
pad10.Profile = sketch18
pad10.Length = 4

sketch19 = body.newObject("Sketcher::SketchObject", "Sketch018")
sketch19.AttachmentSupport = (doc.getObject("XY_Plane"), [""])
sketch19.MapMode = "FlatFace"
sketch19.AttachmentOffset = App.Placement(V(0, 0, 5), App.Rotation())
sketch19.addGeometry(Part.LineSegment(V(28.2, 18.6, 0), V(28.2, 12.6, 0)), False)
sketch19.addGeometry(Part.LineSegment(V(28.2, 12.6, 0), V(26.2, 12.6, 0)), False)
sketch19.addGeometry(Part.LineSegment(V(26.2, 12.6, 0), V(26.2, 18.6, 0)), False)
sketch19.addGeometry(Part.LineSegment(V(26.2, 18.6, 0), V(28.2, 18.6, 0)), False)
sketch19.addConstraint(Sketcher.Constraint("Coincident", 0, 2, 1, 1))
sketch19.addConstraint(Sketcher.Constraint("Coincident", 1, 2, 2, 1))
sketch19.addConstraint(Sketcher.Constraint("Coincident", 2, 2, 3, 1))
sketch19.addConstraint(Sketcher.Constraint("Coincident", 3, 2, 0, 1))
sketch19.addConstraint(Sketcher.Constraint("Vertical", 0))
sketch19.addConstraint(Sketcher.Constraint("Horizontal", 1))
sketch19.addConstraint(Sketcher.Constraint("Vertical", 2))
sketch19.addConstraint(Sketcher.Constraint("Horizontal", 3))
sketch19.addConstraint(Sketcher.Constraint("DistanceX", 1, 2, 1, 1, 2.0))
sketch19.addConstraint(Sketcher.Constraint("DistanceY", 0, 2, 0, 1, 6.0))
sketch19.addConstraint(Sketcher.Constraint("DistanceY", -1, 1, 0, 2, 12.596491))
sketch19.addConstraint(Sketcher.Constraint("DistanceX", -1, 1, 0, 2, 28.210526))
pad11 = body.newObject("PartDesign::Pad", "Pad010")
pad11.Profile = sketch19
pad11.Length = 5
pad11.Reversed = True

sketch20 = body.newObject("Sketcher::SketchObject", "Sketch019")
sketch20.AttachmentSupport = (doc.getObject("YZ_Plane"), [""])
sketch20.MapMode = "FlatFace"
sketch20.AttachmentOffset = App.Placement(V(0, 0, 24.210526), App.Rotation())
sketch20.addGeometry(Part.LineSegment(V(-16, 15, 0), V(-21, 15, 0)), False)
sketch20.addGeometry(Part.LineSegment(V(-21, 15, 0), V(-21, 5, 0)), False)
sketch20.addGeometry(Part.LineSegment(V(-21, 5, 0), V(-16, 5, 0)), False)
sketch20.addGeometry(Part.LineSegment(V(-16, 5, 0), V(-16, 15, 0)), False)
sketch20.addConstraint(Sketcher.Constraint("Coincident", 0, 2, 1, 1))
sketch20.addConstraint(Sketcher.Constraint("Coincident", 1, 2, 2, 1))
sketch20.addConstraint(Sketcher.Constraint("Coincident", 2, 2, 3, 1))
sketch20.addConstraint(Sketcher.Constraint("Coincident", 3, 2, 0, 1))
sketch20.addConstraint(Sketcher.Constraint("Horizontal", 0))
sketch20.addConstraint(Sketcher.Constraint("Vertical", 1))
sketch20.addConstraint(Sketcher.Constraint("Horizontal", 2))
sketch20.addConstraint(Sketcher.Constraint("Vertical", 3))
sketch20.addConstraint(Sketcher.Constraint("DistanceX", 0, 2, 0, 1, 5.0))
sketch20.addConstraint(Sketcher.Constraint("DistanceY", 1, 2, 1, 1, 10.0))
sketch20.addConstraint(Sketcher.Constraint("DistanceY", -1, 1, 0, 2, 15.0))
sketch20.addConstraint(Sketcher.Constraint("DistanceX", 0, 2, -1, 1, 21.403509))
pad12 = body.newObject("PartDesign::Pad", "Pad011")
pad12.Profile = sketch20
pad12.Length = 4

sketch21 = body.newObject("Sketcher::SketchObject", "Sketch020")
sketch21.AttachmentSupport = (doc.getObject("XY_Plane"), [""])
sketch21.MapMode = "FlatFace"
sketch21.AttachmentOffset = App.Placement(V(0, 0, 5), App.Rotation())
sketch21.addGeometry(Part.LineSegment(V(28.2, -16.4, 0), V(28.2, -21.4, 0)), False)
sketch21.addGeometry(Part.LineSegment(V(28.2, -21.4, 0), V(26.2, -21.4, 0)), False)
sketch21.addGeometry(Part.LineSegment(V(26.2, -21.4, 0), V(26.2, -16.4, 0)), False)
sketch21.addGeometry(Part.LineSegment(V(26.2, -16.4, 0), V(28.2, -16.4, 0)), False)
sketch21.addConstraint(Sketcher.Constraint("Coincident", 0, 2, 1, 1))
sketch21.addConstraint(Sketcher.Constraint("Coincident", 1, 2, 2, 1))
sketch21.addConstraint(Sketcher.Constraint("Coincident", 2, 2, 3, 1))
sketch21.addConstraint(Sketcher.Constraint("Coincident", 3, 2, 0, 1))
sketch21.addConstraint(Sketcher.Constraint("Vertical", 0))
sketch21.addConstraint(Sketcher.Constraint("Horizontal", 1))
sketch21.addConstraint(Sketcher.Constraint("Vertical", 2))
sketch21.addConstraint(Sketcher.Constraint("Horizontal", 3))
sketch21.addConstraint(Sketcher.Constraint("DistanceX", 1, 2, 1, 1, 2.0))
sketch21.addConstraint(Sketcher.Constraint("DistanceY", 0, 2, 0, 1, 5.0))
sketch21.addConstraint(Sketcher.Constraint("DistanceY", 0, 2, -1, 1, 21.403509))
sketch21.addConstraint(Sketcher.Constraint("DistanceX", -1, 1, 0, 2, 28.210526))
pad13 = body.newObject("PartDesign::Pad", "Pad012")
pad13.Profile = sketch21
pad13.Length = 5
pad13.Reversed = True
body2 = doc.addObject("PartDesign::Body", "Body001")

sketch22 = body2.newObject("Sketcher::SketchObject", "Sketch021")
sketch22.AttachmentSupport = (doc.getObject("YZ_Plane001"), [""])
sketch22.MapMode = "FlatFace"
sketch22.AttachmentOffset = App.Placement(V(0, 0, -22.789474), App.Rotation())
sketch22.addGeometry(Part.LineSegment(V(-14.5, 13.5, 0), V(-16.5, 13.5, 0)), False)
sketch22.addGeometry(Part.LineSegment(V(-16.5, 13.5, 0), V(-16.5, 141.5, 0)), False)
sketch22.addGeometry(Part.LineSegment(V(-16.5, 141.5, 0), V(-14.5, 141.5, 0)), False)
sketch22.addGeometry(Part.LineSegment(V(-14.5, 141.5, 0), V(-14.5, 13.5, 0)), False)
sketch22.addConstraint(Sketcher.Constraint("Coincident", 0, 2, 1, 1))
sketch22.addConstraint(Sketcher.Constraint("Coincident", 1, 2, 2, 1))
sketch22.addConstraint(Sketcher.Constraint("Coincident", 2, 2, 3, 1))
sketch22.addConstraint(Sketcher.Constraint("Coincident", 3, 2, 0, 1))
sketch22.addConstraint(Sketcher.Constraint("Horizontal", 0))
sketch22.addConstraint(Sketcher.Constraint("Vertical", 1))
sketch22.addConstraint(Sketcher.Constraint("Horizontal", 2))
sketch22.addConstraint(Sketcher.Constraint("Vertical", 3))
sketch22.addConstraint(Sketcher.Constraint("DistanceX", 0, 2, 0, 1, 2.0))
sketch22.addConstraint(Sketcher.Constraint("DistanceY", 1, 1, 1, 2, 128.0))
sketch22.addConstraint(Sketcher.Constraint("DistanceY", -1, 1, 0, 2, 13.5))
sketch22.addConstraint(Sketcher.Constraint("DistanceX", 0, 2, -1, 1, 16.453509))
pad14 = body2.newObject("PartDesign::Pad", "Pad013")
pad14.Profile = sketch22
pad14.Length = 2
pad14.Reversed = True

doc.recompute()
